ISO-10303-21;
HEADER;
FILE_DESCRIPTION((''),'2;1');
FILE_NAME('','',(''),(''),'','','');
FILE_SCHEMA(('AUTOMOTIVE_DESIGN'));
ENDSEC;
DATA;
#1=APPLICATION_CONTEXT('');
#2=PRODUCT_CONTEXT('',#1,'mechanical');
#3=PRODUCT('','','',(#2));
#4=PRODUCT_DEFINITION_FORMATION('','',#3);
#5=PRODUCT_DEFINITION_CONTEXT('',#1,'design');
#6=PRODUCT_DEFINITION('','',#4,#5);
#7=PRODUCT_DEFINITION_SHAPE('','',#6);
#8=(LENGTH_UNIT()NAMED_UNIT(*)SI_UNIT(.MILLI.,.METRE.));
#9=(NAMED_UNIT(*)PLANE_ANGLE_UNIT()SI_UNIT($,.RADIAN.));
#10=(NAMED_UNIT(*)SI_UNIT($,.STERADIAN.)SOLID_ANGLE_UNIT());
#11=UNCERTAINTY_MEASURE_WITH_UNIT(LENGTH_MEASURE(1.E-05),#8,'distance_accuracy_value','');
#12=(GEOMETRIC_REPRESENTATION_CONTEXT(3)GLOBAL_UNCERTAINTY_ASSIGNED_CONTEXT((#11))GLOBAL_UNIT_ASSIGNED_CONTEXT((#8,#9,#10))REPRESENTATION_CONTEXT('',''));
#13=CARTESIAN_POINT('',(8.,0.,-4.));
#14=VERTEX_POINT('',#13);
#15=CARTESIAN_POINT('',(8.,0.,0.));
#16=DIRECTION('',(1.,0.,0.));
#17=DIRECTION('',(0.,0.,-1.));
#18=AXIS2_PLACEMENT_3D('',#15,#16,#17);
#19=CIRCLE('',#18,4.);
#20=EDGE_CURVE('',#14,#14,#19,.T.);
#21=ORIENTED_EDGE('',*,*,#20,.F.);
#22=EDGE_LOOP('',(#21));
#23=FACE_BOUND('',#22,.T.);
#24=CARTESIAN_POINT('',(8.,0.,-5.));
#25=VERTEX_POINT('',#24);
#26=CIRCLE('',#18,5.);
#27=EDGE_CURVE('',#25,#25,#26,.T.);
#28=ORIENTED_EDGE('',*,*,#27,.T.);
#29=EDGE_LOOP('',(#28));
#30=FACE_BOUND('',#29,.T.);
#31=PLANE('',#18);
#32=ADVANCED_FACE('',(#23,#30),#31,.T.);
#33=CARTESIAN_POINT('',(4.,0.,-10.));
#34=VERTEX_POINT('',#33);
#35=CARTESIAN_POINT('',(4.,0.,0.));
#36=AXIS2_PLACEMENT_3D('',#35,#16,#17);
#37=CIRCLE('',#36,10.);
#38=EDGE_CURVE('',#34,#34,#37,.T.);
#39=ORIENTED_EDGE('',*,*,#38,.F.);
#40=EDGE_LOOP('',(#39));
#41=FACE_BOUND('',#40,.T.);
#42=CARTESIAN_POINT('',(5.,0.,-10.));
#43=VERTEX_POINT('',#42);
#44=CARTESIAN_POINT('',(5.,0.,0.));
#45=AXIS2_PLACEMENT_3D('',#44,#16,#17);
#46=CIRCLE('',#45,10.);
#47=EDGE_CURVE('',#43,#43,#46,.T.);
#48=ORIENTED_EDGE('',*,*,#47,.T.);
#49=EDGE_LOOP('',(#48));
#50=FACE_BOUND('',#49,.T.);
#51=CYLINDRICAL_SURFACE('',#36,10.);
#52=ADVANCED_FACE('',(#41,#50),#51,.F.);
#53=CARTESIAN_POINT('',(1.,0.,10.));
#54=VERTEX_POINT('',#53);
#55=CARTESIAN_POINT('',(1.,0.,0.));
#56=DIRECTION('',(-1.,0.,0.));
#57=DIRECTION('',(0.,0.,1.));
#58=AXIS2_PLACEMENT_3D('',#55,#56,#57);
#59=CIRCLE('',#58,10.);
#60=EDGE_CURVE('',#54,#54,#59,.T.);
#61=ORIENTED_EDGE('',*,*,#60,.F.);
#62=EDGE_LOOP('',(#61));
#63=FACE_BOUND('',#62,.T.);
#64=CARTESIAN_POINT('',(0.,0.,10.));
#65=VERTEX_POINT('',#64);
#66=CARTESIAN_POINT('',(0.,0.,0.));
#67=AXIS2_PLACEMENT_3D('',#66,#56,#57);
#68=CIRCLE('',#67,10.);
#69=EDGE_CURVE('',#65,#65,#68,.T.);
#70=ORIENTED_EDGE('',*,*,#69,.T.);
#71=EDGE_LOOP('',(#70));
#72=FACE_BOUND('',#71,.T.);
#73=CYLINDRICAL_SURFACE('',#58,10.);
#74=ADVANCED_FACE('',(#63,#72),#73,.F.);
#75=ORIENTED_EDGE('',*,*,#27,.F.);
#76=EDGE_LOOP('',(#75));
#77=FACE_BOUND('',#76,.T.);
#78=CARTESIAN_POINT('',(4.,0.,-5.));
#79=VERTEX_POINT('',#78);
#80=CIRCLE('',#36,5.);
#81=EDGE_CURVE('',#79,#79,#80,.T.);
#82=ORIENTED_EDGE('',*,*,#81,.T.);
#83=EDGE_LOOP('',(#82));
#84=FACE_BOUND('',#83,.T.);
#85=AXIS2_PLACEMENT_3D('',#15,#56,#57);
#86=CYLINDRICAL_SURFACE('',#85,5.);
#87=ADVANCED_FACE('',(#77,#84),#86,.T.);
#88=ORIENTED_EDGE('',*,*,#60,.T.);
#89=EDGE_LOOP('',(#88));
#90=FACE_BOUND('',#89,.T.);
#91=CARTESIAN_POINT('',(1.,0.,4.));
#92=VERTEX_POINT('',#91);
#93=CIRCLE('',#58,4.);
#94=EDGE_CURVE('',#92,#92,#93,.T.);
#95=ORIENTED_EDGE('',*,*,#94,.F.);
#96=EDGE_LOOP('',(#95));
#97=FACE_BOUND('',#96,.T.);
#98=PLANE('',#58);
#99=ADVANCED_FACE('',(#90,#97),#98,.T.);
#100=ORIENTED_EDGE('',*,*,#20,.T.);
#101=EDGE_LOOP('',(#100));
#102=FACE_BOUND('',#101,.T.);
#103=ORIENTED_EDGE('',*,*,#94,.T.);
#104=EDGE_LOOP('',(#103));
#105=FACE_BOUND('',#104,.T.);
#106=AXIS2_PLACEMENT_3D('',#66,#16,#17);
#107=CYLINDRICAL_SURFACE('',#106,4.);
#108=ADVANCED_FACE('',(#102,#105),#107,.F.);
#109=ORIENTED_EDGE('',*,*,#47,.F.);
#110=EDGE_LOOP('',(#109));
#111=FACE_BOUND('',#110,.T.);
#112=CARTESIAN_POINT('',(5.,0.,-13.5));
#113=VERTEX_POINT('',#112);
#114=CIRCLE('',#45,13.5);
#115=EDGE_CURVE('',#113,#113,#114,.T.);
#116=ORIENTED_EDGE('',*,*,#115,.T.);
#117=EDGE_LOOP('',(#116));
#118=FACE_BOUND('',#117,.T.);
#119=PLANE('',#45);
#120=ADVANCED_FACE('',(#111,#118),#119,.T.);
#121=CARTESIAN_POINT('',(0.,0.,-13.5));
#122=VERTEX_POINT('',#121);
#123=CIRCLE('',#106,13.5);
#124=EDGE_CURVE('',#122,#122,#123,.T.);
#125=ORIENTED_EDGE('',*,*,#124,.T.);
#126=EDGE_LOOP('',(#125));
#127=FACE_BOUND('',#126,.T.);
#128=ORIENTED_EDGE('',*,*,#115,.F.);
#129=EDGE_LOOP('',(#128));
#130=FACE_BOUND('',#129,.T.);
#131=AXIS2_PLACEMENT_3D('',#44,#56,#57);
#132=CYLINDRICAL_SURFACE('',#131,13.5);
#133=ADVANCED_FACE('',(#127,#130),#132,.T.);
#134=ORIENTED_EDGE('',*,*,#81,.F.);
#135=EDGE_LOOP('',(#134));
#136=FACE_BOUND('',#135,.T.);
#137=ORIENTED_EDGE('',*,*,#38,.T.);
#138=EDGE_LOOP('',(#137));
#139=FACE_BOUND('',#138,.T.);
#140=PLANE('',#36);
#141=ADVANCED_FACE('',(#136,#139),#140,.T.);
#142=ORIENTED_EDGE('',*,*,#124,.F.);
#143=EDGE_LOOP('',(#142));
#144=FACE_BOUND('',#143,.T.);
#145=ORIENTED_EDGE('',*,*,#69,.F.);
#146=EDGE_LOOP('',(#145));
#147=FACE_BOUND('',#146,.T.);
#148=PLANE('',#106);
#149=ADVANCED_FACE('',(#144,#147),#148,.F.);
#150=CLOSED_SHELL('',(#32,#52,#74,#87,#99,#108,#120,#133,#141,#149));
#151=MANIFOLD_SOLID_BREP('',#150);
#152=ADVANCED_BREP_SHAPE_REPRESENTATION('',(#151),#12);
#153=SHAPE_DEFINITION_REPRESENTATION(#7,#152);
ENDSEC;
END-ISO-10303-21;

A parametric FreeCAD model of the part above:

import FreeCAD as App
import Part
import Sketcher

V = App.Vector

doc = App.newDocument("Part")
params = doc.addObject("Spreadsheet::Sheet", "Params")
for row, (alias, value) in enumerate([
    ("sketch1_diameter", "27 mm"),
    ("pad1_length", "5 mm"),
    ("sketch2_diameter", "20 mm"),
    ("pocket1_length", "1 mm"),
    ("sketch3_diameter", "20 mm"),
    ("pocket2_length", "1 mm"),
    ("sketch4_diameter", "10 mm"),
    ("pad2_length", "4 mm"),
    ("sketch5_diameter", "8 mm"),
], start=1):
    params.set(f"A{row}", alias)
    params.set(f"B{row}", "=" + value)
    params.setAlias(f"B{row}", alias)

body = doc.addObject("PartDesign::Body", "Body")

# Sketch on YZ plane
sketch1 = body.newObject("Sketcher::SketchObject", "Sketch")
sketch1.AttachmentSupport = (doc.getObject("YZ_Plane"), [""])
sketch1.MapMode = "FlatFace"
sketch1.addGeometry(Part.Circle(V(0, 0, 0), V(0, 0, 1), 14), False)
sketch1.addConstraint(Sketcher.Constraint("Coincident", 0, 3, -1, 1))
sketch1.addConstraint(Sketcher.Constraint("Diameter", 0, 27.0))
sketch1.setExpression("Constraints[1]", "Params.sketch1_diameter")
pad1 = body.newObject("PartDesign::Pad", "Pad")
pad1.Profile = sketch1
pad1.setExpression("Length", "Params.pad1_length")

# Sketch on YZ plane
sketch2 = body.newObject("Sketcher::SketchObject", "Sketch001")
sketch2.AttachmentSupport = (doc.getObject("YZ_Plane"), [""])
sketch2.MapMode = "FlatFace"
sketch2.AttachmentOffset = App.Placement(V(0, 0, 5), App.Rotation())
sketch2.addGeometry(Part.Circle(V(0, 0, 0), V(0, 0, 1), 10), False)
sketch2.addConstraint(Sketcher.Constraint("Coincident", 0, 3, -1, 1))
sketch2.addConstraint(Sketcher.Constraint("Diameter", 0, 20.0))
sketch2.setExpression("Constraints[1]", "Params.sketch2_diameter")
pocket1 = body.newObject("PartDesign::Pocket", "Pocket")
pocket1.Profile = sketch2
pocket1.setExpression("Length", "Params.pocket1_length")

# Sketch on YZ plane
sketch3 = body.newObject("Sketcher::SketchObject", "Sketch002")
sketch3.AttachmentSupport = (doc.getObject("YZ_Plane"), [""])
sketch3.MapMode = "FlatFace"
sketch3.AttachmentOffset = App.Placement(V(0, 0, 1), App.Rotation())
sketch3.addGeometry(Part.Circle(V(0, 0, 0), V(0, 0, 1), 10), False)
sketch3.addConstraint(Sketcher.Constraint("Coincident", 0, 3, -1, 1))
sketch3.addConstraint(Sketcher.Constraint("Diameter", 0, 20.0))
sketch3.setExpression("Constraints[1]", "Params.sketch3_diameter")
pocket2 = body.newObject("PartDesign::Pocket", "Pocket001")
pocket2.Profile = sketch3
pocket2.setExpression("Length", "Params.pocket2_length")

# Sketch on YZ plane
sketch4 = body.newObject("Sketcher::SketchObject", "Sketch003")
sketch4.AttachmentSupport = (doc.getObject("YZ_Plane"), [""])
sketch4.MapMode = "FlatFace"
sketch4.AttachmentOffset = App.Placement(V(0, 0, 4), App.Rotation())
sketch4.addGeometry(Part.Circle(V(0, 0, 0), V(0, 0, 1), 5), False)
sketch4.addConstraint(Sketcher.Constraint("Coincident", 0, 3, -1, 1))
sketch4.addConstraint(Sketcher.Constraint("Diameter", 0, 10.0))
sketch4.setExpression("Constraints[1]", "Params.sketch4_diameter")
pad2 = body.newObject("PartDesign::Pad", "Pad001")
pad2.Profile = sketch4
pad2.setExpression("Length", "Params.pad2_length")

# Sketch on YZ plane
sketch5 = body.newObject("Sketcher::SketchObject", "Sketch004")
sketch5.AttachmentSupport = (doc.getObject("YZ_Plane"), [""])
sketch5.MapMode = "FlatFace"
sketch5.AttachmentOffset = App.Placement(V(0, 0, 8), App.Rotation())
sketch5.addGeometry(Part.Circle(V(0, 0, 0), V(0, 0, 1), 4), False)
sketch5.addConstraint(Sketcher.Constraint("Coincident", 0, 3, -1, 1))
sketch5.addConstraint(Sketcher.Constraint("Diameter", 0, 8.0))
sketch5.setExpression("Constraints[1]", "Params.sketch5_diameter")
pocket3 = body.newObject("PartDesign::Pocket", "Pocket002")
pocket3.Profile = sketch5
pocket3.Type = "ThroughAll"

doc.recompute()
